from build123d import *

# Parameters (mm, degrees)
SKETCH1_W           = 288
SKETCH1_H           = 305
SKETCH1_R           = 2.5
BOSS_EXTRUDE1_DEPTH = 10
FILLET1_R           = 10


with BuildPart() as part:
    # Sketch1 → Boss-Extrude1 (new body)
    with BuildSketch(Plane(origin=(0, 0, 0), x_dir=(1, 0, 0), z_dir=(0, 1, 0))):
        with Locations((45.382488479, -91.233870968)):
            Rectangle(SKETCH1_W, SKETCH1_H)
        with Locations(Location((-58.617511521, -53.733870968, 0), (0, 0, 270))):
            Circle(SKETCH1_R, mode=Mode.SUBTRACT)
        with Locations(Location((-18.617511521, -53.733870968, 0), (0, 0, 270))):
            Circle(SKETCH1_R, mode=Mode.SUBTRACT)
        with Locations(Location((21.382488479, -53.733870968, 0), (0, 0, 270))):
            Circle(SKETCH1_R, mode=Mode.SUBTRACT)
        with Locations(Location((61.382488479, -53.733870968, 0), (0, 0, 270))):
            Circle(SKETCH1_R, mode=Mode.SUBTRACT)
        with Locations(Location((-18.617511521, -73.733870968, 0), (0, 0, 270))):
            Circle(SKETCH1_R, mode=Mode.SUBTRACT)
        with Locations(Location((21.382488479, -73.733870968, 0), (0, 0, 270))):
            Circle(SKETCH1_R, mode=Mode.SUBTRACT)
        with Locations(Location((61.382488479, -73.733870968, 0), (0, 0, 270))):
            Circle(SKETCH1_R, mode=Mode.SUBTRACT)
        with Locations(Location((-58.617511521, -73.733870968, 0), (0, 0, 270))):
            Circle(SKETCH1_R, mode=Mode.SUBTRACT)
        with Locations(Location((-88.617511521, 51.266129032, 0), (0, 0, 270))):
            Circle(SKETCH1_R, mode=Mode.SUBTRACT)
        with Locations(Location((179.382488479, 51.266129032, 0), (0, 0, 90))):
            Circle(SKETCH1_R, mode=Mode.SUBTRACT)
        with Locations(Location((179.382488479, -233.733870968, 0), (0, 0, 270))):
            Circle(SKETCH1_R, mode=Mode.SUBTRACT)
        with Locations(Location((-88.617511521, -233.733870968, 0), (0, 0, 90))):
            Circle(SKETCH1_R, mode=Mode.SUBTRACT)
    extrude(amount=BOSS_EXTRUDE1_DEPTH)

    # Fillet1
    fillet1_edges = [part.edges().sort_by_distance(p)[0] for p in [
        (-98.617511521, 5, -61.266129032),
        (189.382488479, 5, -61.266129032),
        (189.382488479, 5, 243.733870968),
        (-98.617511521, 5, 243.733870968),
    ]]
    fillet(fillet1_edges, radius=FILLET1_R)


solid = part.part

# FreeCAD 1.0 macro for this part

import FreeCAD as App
import Part
import Sketcher

V = App.Vector


def edges_at(feature, points):
    """Names of the edges that pass closest to the given points."""
    edges = feature.Shape.Edges
    near = lambda p: min(range(len(edges)), key=lambda i: edges[i].distToShape(Part.Vertex(*p))[0])
    return sorted({f"Edge{near(p) + 1}" for p in points})

doc = App.newDocument("Part")
body = doc.addObject("PartDesign::Body", "Body")

sketch1 = body.newObject("Sketcher::SketchObject", "Sketch")
sketch1.AttachmentSupport = (doc.getObject("XZ_Plane"), [""])
sketch1.MapMode = "FlatFace"
sketch1.addGeometry([
    Part.LineSegment(V(-98.617512, -61.266129, 0), V(-98.617512, 243.733871, 0)),
    Part.LineSegment(V(-98.617512, 243.733871, 0), V(189.382488, 243.733871, 0)),
    Part.LineSegment(V(189.382488, 243.733871, 0), V(189.382488, -61.266129, 0)),
    Part.LineSegment(V(189.382488, -61.266129, 0), V(-98.617512, -61.266129, 0)),
    Part.Circle(V(-88.617512, 233.733871, 0), V(0, 0, 1), 2.5),
    Part.Circle(V(179.382488, 233.733871, 0), V(0, 0, 1), 2.5),
    Part.Circle(V(-58.617512, 73.733871, 0), V(0, 0, 1), 2.5),
    Part.Circle(V(-58.617512, 53.733871, 0), V(0, 0, 1), 2.5),
    Part.Circle(V(-18.617512, 73.733871, 0), V(0, 0, 1), 2.5),
    Part.Circle(V(21.382488, 73.733871, 0), V(0, 0, 1), 2.5),
    Part.Circle(V(-18.617512, 53.733871, 0), V(0, 0, 1), 2.5),
    Part.Circle(V(21.382488, 53.733871, 0), V(0, 0, 1), 2.5),
    Part.Circle(V(-88.617512, -51.266129, 0), V(0, 0, 1), 2.5),
    Part.Circle(V(61.382488, 73.733871, 0), V(0, 0, 1), 2.5),
    Part.Circle(V(61.382488, 53.733871, 0), V(0, 0, 1), 2.5),
    Part.Circle(V(179.382488, -51.266129, 0), V(0, 0, 1), 2.5),
], False)
sketch1.addConstraint([
    Sketcher.Constraint("Coincident", 0, 2, 1, 1),
    Sketcher.Constraint("Coincident", 1, 2, 2, 1),
    Sketcher.Constraint("Coincident", 2, 2, 3, 1),
    Sketcher.Constraint("Coincident", 3, 2, 0, 1),
    Sketcher.Constraint("Vertical", 0),
    Sketcher.Constraint("Horizontal", 1),
    Sketcher.Constraint("Vertical", 2),
    Sketcher.Constraint("Horizontal", 3),
    Sketcher.Constraint("Equal", 4, 5),
    Sketcher.Constraint("Equal", 5, 6),
    Sketcher.Constraint("Equal", 6, 7),
    Sketcher.Constraint("Equal", 7, 8),
    Sketcher.Constraint("Equal", 8, 9),
    Sketcher.Constraint("Equal", 9, 10),
    Sketcher.Constraint("Equal", 10, 11),
    Sketcher.Constraint("Equal", 11, 12),
    Sketcher.Constraint("Equal", 12, 13),
    Sketcher.Constraint("Equal", 13, 14),
    Sketcher.Constraint("Equal", 14, 15),
    Sketcher.Constraint("Horizontal", 4, 3, 5, 3),
    Sketcher.Constraint("Horizontal", 6, 3, 8, 3),
    Sketcher.Constraint("Horizontal", 8, 3, 9, 3),
    Sketcher.Constraint("Horizontal", 7, 3, 10, 3),
    Sketcher.Constraint("Horizontal", 10, 3, 11, 3),
    Sketcher.Constraint("Horizontal", 9, 3, 13, 3),
    Sketcher.Constraint("Horizontal", 11, 3, 14, 3),
    Sketcher.Constraint("Horizontal", 12, 3, 15, 3),
    Sketcher.Constraint("Vertical", 6, 3, 7, 3),
    Sketcher.Constraint("Vertical", 8, 3, 10, 3),
    Sketcher.Constraint("Vertical", 9, 3, 11, 3),
    Sketcher.Constraint("Vertical", 4, 3, 12, 3),
    Sketcher.Constraint("Vertical", 13, 3, 14, 3),
    Sketcher.Constraint("Vertical", 5, 3, 15, 3),
    Sketcher.Constraint("Diameter", 4, 5.0),
    Sketcher.Constraint("DistanceX", 1, 1, 1, 2, 288.0),
    Sketcher.Constraint("DistanceY", 0, 1, 0, 2, 305.0),
    Sketcher.Constraint("DistanceX", 4, 3, 5, 3, 268.0),
    Sketcher.Constraint("DistanceX", 4, 3, 6, 3, 30.0),
    Sketcher.Constraint("DistanceY", 6, 3, 4, 3, 160.0),
    Sketcher.Constraint("DistanceY", 7, 3, 6, 3, 20.0),
    Sketcher.Constraint("DistanceX", 6, 3, 8, 3, 40.0),
    Sketcher.Constraint("DistanceX", 8, 3, 9, 3, 40.0),
    Sketcher.Constraint("DistanceY", 12, 3, 7, 3, 105.0),
    Sketcher.Constraint("DistanceX", 9, 3, 13, 3, 40.0),
    Sketcher.Constraint("DistanceX", 0, 2, 4, 3, 10.0),
    Sketcher.Constraint("DistanceY", 4, 3, 0, 2, 10.0),
    Sketcher.Constraint("DistanceX", 4, 3, -1, 1, 88.617512),
    Sketcher.Constraint("DistanceY", -1, 1, 4, 3, 233.733871),
])
pad1 = body.newObject("PartDesign::Pad", "Pad")
pad1.Profile = sketch1
pad1.Length = 10
pad1.Reversed = True
doc.recompute()

fillet = body.newObject("PartDesign::Fillet", "Fillet")
fillet.Base = (pad1, edges_at(pad1, [
    (-98.618, 5, -61.266),
    (189.382, 5, -61.266),
    (189.382, 5, 243.734),
    (-98.618, 5, 243.734),
]))
fillet.Radius = 10

doc.recompute()
